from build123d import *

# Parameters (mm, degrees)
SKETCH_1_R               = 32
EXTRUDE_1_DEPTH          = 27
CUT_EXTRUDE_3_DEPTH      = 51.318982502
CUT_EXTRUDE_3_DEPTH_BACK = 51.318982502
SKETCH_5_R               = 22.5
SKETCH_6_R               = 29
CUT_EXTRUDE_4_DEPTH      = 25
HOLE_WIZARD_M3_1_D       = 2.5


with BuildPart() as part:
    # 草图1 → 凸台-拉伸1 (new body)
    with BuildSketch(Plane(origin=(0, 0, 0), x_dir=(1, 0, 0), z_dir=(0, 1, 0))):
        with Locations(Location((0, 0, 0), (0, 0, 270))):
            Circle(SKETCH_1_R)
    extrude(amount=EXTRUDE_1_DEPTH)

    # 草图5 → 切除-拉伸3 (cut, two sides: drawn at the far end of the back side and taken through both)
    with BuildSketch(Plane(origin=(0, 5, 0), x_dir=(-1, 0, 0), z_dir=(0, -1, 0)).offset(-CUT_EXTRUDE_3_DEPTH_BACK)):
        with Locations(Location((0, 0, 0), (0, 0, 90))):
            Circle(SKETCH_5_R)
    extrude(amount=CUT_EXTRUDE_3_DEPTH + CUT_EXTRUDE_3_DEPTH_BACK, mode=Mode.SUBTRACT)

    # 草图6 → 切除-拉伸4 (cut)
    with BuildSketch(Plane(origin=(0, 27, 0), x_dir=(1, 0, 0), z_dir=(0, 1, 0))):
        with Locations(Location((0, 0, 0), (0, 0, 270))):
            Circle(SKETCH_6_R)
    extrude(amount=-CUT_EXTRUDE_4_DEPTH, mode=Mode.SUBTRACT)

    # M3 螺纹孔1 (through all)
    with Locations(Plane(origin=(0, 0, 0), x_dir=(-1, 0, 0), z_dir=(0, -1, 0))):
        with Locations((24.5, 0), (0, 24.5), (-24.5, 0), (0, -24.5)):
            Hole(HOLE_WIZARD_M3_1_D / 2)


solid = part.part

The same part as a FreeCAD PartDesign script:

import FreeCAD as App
import Part
import Sketcher

V = App.Vector

doc = App.newDocument("Part")
body = doc.addObject("PartDesign::Body", "Body")

# Sketch on XZ plane
sketch1 = body.newObject("Sketcher::SketchObject", "Sketch")
sketch1.AttachmentSupport = (doc.getObject("XZ_Plane"), [""])
sketch1.MapMode = "FlatFace"
sketch1.addGeometry(Part.Circle(V(0, 0, 0), V(0, 0, 1), 32), False)
sketch1.addConstraint([
    Sketcher.Constraint("Coincident", 0, 3, -1, 1),
    Sketcher.Constraint("Diameter", 0, 64.0),
])
pad1 = body.newObject("PartDesign::Pad", "Pad")
pad1.Profile = sketch1
pad1.Length = 27
pad1.Reversed = True

# Sketch on XZ plane
sketch2 = body.newObject("Sketcher::SketchObject", "Sketch001")
sketch2.AttachmentSupport = (doc.getObject("XZ_Plane"), [""])
sketch2.MapMode = "FlatFace"
sketch2.AttachmentOffset = App.Placement(V(0, 0, -5), App.Rotation())
sketch2.addGeometry(Part.Circle(V(0, 0, 0), V(0, 0, 1), 22), False)
sketch2.addConstraint([
    Sketcher.Constraint("Coincident", 0, 3, -1, 1),
    Sketcher.Constraint("Diameter", 0, 45.0),
])
pocket1 = body.newObject("PartDesign::Pocket", "Pocket")
pocket1.Profile = sketch2
pocket1.Type = "ThroughAll"
pocket1.Midplane = True

# Sketch on XZ plane
sketch3 = body.newObject("Sketcher::SketchObject", "Sketch002")
sketch3.AttachmentSupport = (doc.getObject("XZ_Plane"), [""])
sketch3.MapMode = "FlatFace"
sketch3.AttachmentOffset = App.Placement(V(0, 0, -27), App.Rotation())
sketch3.addGeometry(Part.Circle(V(0, 0, 0), V(0, 0, 1), 29), False)
sketch3.addConstraint([
    Sketcher.Constraint("Coincident", 0, 3, -1, 1),
    Sketcher.Constraint("Diameter", 0, 58.0),
])
pocket2 = body.newObject("PartDesign::Pocket", "Pocket001")
pocket2.Profile = sketch3
pocket2.Length = 25
pocket2.Reversed = True

# Sketch on XZ plane
sketch4 = body.newObject("Sketcher::SketchObject", "Sketch003")
sketch4.AttachmentSupport = (doc.getObject("XZ_Plane"), [""])
sketch4.MapMode = "FlatFace"
sketch4.addGeometry([
    Part.Circle(V(-24.5, 0, 0), V(0, 0, 1), 1.2),
    Part.Circle(V(0, -24.5, 0), V(0, 0, 1), 1.2),
    Part.Circle(V(24.5, 0, 0), V(0, 0, 1), 1.2),
    Part.Circle(V(0, 24.5, 0), V(0, 0, 1), 1.2),
], False)
sketch4.addConstraint([
    Sketcher.Constraint("Equal", 0, 1),
    Sketcher.Constraint("Equal", 1, 2),
    Sketcher.Constraint("Equal", 2, 3),
    Sketcher.Constraint("Symmetric", 0, 3, 2, 3, -1, 1),
    Sketcher.Constraint("Symmetric", 1, 3, 3, 3, -1, 1),
    Sketcher.Constraint("PointOnObject", 0, 3, -1),
    Sketcher.Constraint("PointOnObject", 1, 3, -2),
    Sketcher.Constraint("Diameter", 0, 2.5),
    Sketcher.Constraint("DistanceX", 0, 3, 2, 3, 49.0),
    Sketcher.Constraint("DistanceY", 1, 3, 3, 3, 49.0),
])
doc.recompute()
hole = body.newObject("PartDesign::Hole", "Hole")
hole.Profile = sketch4
hole.ThreadType = "None"
hole.Diameter = 2.5
hole.DepthType = "ThroughAll"

doc.recompute()
